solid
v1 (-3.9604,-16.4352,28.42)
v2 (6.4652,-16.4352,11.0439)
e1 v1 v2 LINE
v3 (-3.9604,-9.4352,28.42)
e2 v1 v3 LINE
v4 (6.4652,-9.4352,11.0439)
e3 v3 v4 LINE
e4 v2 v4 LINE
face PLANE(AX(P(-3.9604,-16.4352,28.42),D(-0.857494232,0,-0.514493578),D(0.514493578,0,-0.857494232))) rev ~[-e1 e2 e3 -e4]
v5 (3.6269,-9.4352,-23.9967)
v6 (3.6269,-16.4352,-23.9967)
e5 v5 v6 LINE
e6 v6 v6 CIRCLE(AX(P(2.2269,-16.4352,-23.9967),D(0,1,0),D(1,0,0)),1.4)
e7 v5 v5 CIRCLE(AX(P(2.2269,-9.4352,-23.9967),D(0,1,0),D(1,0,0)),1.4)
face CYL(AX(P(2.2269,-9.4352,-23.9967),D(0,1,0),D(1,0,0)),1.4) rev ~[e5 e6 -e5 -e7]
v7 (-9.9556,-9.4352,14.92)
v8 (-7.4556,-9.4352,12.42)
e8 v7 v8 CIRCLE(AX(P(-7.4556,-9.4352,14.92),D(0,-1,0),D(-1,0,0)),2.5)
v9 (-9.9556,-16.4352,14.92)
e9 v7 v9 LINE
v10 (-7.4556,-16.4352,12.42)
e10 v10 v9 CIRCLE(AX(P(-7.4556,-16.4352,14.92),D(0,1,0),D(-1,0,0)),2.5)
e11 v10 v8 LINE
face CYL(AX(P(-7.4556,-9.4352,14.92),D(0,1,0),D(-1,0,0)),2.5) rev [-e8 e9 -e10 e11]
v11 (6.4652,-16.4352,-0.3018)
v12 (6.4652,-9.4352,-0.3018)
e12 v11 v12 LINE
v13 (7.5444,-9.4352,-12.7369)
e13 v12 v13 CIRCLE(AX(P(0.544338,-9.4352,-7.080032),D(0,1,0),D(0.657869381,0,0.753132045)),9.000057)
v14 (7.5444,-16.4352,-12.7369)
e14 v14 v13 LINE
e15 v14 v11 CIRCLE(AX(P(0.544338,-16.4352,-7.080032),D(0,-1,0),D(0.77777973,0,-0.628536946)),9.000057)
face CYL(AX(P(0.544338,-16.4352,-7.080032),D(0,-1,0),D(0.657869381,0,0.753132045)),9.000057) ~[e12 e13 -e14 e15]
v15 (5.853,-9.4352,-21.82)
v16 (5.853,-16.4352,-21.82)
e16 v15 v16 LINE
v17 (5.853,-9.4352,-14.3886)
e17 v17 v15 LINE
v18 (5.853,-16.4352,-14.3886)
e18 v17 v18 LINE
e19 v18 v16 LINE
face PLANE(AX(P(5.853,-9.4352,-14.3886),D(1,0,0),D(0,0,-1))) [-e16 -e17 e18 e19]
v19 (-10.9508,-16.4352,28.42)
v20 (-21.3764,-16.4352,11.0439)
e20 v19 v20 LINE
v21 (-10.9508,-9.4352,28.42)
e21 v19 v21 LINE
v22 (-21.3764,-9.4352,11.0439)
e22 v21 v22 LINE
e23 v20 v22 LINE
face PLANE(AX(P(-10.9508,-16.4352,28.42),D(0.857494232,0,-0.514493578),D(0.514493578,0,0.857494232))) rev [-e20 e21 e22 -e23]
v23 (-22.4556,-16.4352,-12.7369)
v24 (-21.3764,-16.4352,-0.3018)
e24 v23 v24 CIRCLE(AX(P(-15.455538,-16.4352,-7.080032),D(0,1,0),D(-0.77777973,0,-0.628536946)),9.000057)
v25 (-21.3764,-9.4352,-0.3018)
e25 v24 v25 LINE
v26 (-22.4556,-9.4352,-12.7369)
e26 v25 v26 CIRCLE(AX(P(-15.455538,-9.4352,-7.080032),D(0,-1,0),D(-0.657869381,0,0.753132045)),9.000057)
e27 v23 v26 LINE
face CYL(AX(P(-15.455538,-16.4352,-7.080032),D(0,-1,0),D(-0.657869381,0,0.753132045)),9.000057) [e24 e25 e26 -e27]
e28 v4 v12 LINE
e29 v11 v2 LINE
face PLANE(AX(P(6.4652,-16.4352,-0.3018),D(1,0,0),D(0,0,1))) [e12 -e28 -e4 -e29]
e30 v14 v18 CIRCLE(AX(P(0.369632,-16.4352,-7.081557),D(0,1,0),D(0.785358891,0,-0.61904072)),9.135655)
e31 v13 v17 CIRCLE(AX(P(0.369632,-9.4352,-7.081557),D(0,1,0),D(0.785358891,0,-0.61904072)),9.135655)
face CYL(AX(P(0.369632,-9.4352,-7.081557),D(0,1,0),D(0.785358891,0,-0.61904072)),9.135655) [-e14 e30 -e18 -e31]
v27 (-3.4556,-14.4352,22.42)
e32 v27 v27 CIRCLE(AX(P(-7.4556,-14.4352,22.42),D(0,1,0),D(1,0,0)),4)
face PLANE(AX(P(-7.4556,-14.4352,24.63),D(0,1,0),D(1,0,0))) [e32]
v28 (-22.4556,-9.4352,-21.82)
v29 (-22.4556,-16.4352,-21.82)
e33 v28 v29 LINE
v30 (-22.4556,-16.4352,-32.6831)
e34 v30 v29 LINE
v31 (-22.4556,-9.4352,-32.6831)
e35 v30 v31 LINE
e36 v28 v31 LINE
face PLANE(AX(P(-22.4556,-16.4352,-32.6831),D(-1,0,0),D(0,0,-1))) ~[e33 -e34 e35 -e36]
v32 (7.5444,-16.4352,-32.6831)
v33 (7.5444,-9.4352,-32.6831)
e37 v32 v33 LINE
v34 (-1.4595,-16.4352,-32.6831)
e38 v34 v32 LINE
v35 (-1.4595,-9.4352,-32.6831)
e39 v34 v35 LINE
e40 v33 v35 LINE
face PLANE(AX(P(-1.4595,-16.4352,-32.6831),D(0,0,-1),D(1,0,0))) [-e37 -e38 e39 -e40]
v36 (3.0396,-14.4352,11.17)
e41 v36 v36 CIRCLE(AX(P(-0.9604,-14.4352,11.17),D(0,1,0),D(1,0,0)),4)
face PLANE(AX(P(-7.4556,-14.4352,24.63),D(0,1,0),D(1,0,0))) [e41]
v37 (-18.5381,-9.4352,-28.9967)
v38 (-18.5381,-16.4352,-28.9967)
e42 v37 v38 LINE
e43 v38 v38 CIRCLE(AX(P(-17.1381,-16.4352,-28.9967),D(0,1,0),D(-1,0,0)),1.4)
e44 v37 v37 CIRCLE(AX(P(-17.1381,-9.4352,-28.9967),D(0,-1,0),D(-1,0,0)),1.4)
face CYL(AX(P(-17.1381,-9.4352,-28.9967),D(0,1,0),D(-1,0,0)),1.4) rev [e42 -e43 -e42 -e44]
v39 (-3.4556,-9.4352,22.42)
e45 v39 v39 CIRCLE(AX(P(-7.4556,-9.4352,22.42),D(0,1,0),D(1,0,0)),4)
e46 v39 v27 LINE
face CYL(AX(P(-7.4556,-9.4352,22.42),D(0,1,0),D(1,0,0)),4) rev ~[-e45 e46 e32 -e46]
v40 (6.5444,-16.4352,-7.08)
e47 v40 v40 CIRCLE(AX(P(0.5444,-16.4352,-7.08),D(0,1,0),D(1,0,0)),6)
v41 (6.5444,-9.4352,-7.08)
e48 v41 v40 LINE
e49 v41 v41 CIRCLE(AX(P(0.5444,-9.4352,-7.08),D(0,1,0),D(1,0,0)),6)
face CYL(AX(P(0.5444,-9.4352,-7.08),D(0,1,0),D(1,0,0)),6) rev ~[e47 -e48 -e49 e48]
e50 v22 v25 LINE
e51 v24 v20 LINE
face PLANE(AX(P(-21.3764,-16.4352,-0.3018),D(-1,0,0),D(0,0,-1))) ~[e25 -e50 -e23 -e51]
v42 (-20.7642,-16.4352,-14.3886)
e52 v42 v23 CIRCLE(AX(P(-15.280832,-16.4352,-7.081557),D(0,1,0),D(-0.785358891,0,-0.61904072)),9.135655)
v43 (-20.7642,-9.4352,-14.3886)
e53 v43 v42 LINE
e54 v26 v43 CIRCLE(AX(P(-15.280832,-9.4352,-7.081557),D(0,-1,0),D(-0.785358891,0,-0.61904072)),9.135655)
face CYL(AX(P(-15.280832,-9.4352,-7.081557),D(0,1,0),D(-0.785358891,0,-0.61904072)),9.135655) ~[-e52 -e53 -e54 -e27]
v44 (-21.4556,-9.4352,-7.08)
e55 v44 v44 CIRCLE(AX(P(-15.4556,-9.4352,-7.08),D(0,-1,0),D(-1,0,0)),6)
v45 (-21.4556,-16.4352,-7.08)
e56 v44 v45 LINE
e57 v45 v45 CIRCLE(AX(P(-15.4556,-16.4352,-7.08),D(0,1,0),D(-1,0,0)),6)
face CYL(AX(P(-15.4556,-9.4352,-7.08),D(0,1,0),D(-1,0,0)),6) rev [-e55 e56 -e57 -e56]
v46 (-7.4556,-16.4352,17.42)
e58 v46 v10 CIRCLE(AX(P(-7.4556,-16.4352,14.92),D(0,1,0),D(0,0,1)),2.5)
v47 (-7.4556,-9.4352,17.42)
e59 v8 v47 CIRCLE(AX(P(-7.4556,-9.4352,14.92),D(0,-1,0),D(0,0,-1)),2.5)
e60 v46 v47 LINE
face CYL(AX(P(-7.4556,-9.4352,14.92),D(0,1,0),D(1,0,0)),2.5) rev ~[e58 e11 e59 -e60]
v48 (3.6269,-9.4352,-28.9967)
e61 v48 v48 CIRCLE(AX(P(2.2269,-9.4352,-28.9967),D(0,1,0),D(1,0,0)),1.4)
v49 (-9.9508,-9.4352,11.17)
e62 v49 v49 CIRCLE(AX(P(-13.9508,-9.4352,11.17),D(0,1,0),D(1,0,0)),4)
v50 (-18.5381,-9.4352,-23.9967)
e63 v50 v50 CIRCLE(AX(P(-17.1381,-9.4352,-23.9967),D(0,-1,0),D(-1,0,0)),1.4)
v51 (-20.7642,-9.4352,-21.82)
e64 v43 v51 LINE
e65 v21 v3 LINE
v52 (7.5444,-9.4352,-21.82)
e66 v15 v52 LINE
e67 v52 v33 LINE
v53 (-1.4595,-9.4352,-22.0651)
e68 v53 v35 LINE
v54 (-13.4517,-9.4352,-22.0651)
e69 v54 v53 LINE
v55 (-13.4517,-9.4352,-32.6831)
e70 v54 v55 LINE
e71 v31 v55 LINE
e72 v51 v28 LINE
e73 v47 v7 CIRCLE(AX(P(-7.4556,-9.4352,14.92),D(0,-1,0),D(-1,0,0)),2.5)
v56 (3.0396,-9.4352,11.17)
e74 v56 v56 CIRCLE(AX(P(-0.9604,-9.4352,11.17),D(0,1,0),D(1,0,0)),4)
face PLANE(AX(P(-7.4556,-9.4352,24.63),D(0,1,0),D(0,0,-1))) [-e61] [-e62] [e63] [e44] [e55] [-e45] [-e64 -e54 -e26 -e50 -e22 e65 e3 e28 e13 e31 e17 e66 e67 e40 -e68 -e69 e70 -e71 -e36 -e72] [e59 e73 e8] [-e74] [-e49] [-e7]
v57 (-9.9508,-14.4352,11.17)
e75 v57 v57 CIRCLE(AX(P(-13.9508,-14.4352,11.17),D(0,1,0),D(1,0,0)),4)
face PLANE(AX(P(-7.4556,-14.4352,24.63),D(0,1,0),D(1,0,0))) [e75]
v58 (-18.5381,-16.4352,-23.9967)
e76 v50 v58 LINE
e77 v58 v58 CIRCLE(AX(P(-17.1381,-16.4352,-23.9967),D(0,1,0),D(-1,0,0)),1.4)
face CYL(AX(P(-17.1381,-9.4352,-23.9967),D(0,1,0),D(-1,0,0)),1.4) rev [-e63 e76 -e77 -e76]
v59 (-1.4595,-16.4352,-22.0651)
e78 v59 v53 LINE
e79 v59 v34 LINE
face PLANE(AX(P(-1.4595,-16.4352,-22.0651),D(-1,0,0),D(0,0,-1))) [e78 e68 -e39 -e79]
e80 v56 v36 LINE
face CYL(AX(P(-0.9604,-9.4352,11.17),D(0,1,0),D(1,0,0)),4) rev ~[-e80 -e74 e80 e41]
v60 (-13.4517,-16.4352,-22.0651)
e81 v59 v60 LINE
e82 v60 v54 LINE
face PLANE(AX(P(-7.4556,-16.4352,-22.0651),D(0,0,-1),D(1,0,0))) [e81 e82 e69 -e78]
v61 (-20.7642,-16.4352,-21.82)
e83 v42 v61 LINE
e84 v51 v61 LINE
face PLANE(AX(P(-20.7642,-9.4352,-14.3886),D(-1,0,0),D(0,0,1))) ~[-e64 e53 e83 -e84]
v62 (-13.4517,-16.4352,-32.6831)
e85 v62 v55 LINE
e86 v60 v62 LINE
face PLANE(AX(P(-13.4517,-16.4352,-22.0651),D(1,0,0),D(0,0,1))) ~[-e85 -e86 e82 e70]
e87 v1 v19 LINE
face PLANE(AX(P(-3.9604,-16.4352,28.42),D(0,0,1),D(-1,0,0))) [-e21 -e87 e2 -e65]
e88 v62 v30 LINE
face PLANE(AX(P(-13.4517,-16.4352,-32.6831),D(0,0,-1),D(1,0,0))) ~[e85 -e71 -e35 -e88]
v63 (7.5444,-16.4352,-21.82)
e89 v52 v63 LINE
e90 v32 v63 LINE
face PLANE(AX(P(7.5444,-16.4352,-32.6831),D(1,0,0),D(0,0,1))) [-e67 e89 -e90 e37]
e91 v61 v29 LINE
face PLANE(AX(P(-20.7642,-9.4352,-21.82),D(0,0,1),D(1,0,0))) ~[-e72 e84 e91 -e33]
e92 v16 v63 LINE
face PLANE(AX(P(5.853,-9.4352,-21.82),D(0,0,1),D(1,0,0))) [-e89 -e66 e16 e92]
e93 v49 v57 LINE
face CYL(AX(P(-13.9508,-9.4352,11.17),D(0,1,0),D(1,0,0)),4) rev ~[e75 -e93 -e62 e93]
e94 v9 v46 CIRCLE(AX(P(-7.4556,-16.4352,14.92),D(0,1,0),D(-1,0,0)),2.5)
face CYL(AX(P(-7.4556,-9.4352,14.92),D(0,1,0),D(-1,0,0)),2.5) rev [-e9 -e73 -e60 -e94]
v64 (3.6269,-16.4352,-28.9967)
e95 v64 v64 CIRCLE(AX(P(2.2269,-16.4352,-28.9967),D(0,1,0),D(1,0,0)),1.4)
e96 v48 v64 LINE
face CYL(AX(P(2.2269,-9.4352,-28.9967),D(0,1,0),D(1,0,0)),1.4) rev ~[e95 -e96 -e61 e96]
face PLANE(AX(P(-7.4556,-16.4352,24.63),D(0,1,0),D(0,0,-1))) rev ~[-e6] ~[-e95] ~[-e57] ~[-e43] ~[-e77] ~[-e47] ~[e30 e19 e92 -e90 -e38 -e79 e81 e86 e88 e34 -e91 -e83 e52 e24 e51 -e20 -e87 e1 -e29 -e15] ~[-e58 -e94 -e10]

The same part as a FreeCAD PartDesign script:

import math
import FreeCAD as App
import Part
import Sketcher
from FreeCAD import Vector
Q = App.Units.Quantity

doc = App.newDocument("Part")
body = doc.addObject("PartDesign::Body", "Body")

sketch1 = body.newObject("Sketcher::SketchObject", "Sketch")
sketch1.AttachmentSupport = (doc.getObject("XZ_Plane"), [""])
sketch1.MapMode = "FlatFace"
sketch1.AttachmentOffset = App.Placement(Vector(0, 0, 16.4352), App.Rotation())
sketch1.addGeometry([
    Part.LineSegment(Vector(-1.5, -22.1, 0), Vector(-7.5, -22.1, 0)),
    Part.LineSegment(Vector(-7.5, -22.1, 0), Vector(-7.5, 28.4, 0)),
    Part.LineSegment(Vector(-7.5, 28.4, 0), Vector(-4, 28.4, 0)),
    Part.LineSegment(Vector(-4, 28.4, 0), Vector(6.5, 11, 0)),
    Part.LineSegment(Vector(6.5, 11, 0), Vector(6.5, -0.3, 0)),
    Part.ArcOfCircle(Part.Circle(Vector(0.5, -7.1, 0), Vector(0, 0, 1), 9), math.radians(-39), math.radians(49)),
    Part.LineSegment(Vector(7.5, -12.7, 0), Vector(7.5, -32.7, 0)),
    Part.LineSegment(Vector(7.5, -32.7, 0), Vector(-1.5, -32.7, 0)),
    Part.LineSegment(Vector(-1.5, -32.7, 0), Vector(-1.5, -22.1, 0)),
], False)
sketch1.addConstraint([
    Sketcher.Constraint("Coincident", 0, 2, 1, 1),
    Sketcher.Constraint("Coincident", 1, 2, 2, 1),
    Sketcher.Constraint("Coincident", 2, 2, 3, 1),
    Sketcher.Constraint("Coincident", 3, 2, 4, 1),
    Sketcher.Constraint("Coincident", 4, 2, 5, 2),
    Sketcher.Constraint("Coincident", 5, 1, 6, 1),
    Sketcher.Constraint("Coincident", 6, 2, 7, 1),
    Sketcher.Constraint("Coincident", 7, 2, 8, 1),
    Sketcher.Constraint("Coincident", 8, 2, 0, 1),
    Sketcher.Constraint("Horizontal", 0),
    Sketcher.Constraint("Vertical", 1),
    Sketcher.Constraint("Horizontal", 2),
    Sketcher.Constraint("Vertical", 4),
    Sketcher.Constraint("Vertical", 6),
    Sketcher.Constraint("Horizontal", 7),
    Sketcher.Constraint("Vertical", 8),
    Sketcher.Constraint("Radius", 5, Q("9 mm")),
    Sketcher.Constraint("DistanceX", 0, 2, 5, 3, Q("8 mm")),
    Sketcher.Constraint("DistanceX", 5, 3, 5, 1, Q("7 mm")),
    Sketcher.Constraint("DistanceY", 5, 3, 1, 2, Q("35.5 mm")),
    Sketcher.Constraint("DistanceX", 0, 2, 0, 1, Q("5.996 mm")),
    Sketcher.Constraint("DistanceY", 1, 1, 1, 2, Q("50.485 mm")),
    Sketcher.Constraint("DistanceY", 8, 1, 8, 2, Q("10.618 mm")),
    Sketcher.Constraint("DistanceY", 5, 3, -1, 1, Q("7.08 mm")),
    Sketcher.Constraint("DistanceX", 2, 1, 2, 2, Q("3.4952 mm")),
    Sketcher.Constraint("DistanceY", 4, 2, 4, 1, Q("11.3457 mm")),
    Sketcher.Constraint("DistanceY", -1, 1, 3, 2, Q("11.044 mm")),
    Sketcher.Constraint("DistanceX", -1, 1, 5, 3, Q("0.5444 mm")),
])
pad1 = body.newObject("PartDesign::Pad", "Pad")
pad1.Profile = sketch1
pad1.Length = 7
pad1.Reversed = True

sketch2 = body.newObject("Sketcher::SketchObject", "Sketch001")
sketch2.AttachmentSupport = (doc.getObject("XZ_Plane"), [""])
sketch2.MapMode = "FlatFace"
sketch2.AttachmentOffset = App.Placement(Vector(0, 0, 9.4352), App.Rotation())
sketch2.addGeometry([
    Part.Circle(Vector(0.5, -7.1, 0), Vector(0, 0, 1), 6),
    Part.Circle(Vector(2.2, -29, 0), Vector(0, 0, 1), 1.4),
    Part.Circle(Vector(2.2, -24, 0), Vector(0, 0, 1), 1.4),
    Part.Circle(Vector(-7.5, 14.9, 0), Vector(0, 0, 1), 2.5),
], False)
sketch2.addConstraint([
    Sketcher.Constraint("Equal", 1, 2),
    Sketcher.Constraint("Vertical", 1, 3, 2, 3),
    Sketcher.Constraint("Diameter", 0, Q("12 mm")),
    Sketcher.Constraint("Diameter", 3, Q("5 mm")),
    Sketcher.Constraint("Diameter", 1, Q("2.8 mm")),
    Sketcher.Constraint("DistanceY", 1, 3, 2, 3, Q("5 mm")),
    Sketcher.Constraint("DistanceX", 3, 3, 0, 3, Q("8 mm")),
    Sketcher.Constraint("DistanceY", 0, 3, 3, 3, Q("22 mm")),
    Sketcher.Constraint("DistanceY", 0, 3, -1, 1, Q("7.08 mm")),
    Sketcher.Constraint("DistanceX", -1, 1, 1, 3, Q("2.227 mm")),
    Sketcher.Constraint("DistanceX", -1, 1, 0, 3, Q("0.5444 mm")),
    Sketcher.Constraint("DistanceY", 1, 3, -1, 1, Q("28.9967 mm")),
])
pocket1 = body.newObject("PartDesign::Pocket", "Pocket")
pocket1.Profile = sketch2
pocket1.Type = "ThroughAll"
pocket1.Reversed = True

sketch3 = body.newObject("Sketcher::SketchObject", "Sketch002")
sketch3.AttachmentSupport = (doc.getObject("XZ_Plane"), [""])
sketch3.MapMode = "FlatFace"
sketch3.AttachmentOffset = App.Placement(Vector(0, 0, 9.4352), App.Rotation())
sketch3.addGeometry([
    Part.ArcOfCircle(Part.Circle(Vector(0.4, -7.1, 0), Vector(0, 0, 1), 9.1), math.radians(-53.11), math.radians(-38.25)),
    Part.LineSegment(Vector(7.5, -12.7, 0), Vector(7.5, -21.8, 0)),
    Part.LineSegment(Vector(7.5, -21.8, 0), Vector(5.9, -21.8, 0)),
    Part.LineSegment(Vector(5.9, -21.8, 0), Vector(5.9, -14.4, 0)),
], False)
sketch3.addConstraint([
    Sketcher.Constraint("Coincident", 0, 2, 1, 1),
    Sketcher.Constraint("Coincident", 1, 2, 2, 1),
    Sketcher.Constraint("Coincident", 2, 2, 3, 1),
    Sketcher.Constraint("Coincident", 3, 2, 0, 1),
    Sketcher.Constraint("Vertical", 1),
    Sketcher.Constraint("Horizontal", 2),
    Sketcher.Constraint("Vertical", 3),
    Sketcher.Constraint("Radius", 0, Q("9.1357 mm")),
    Sketcher.Constraint("DistanceY", 1, 2, 1, 1, Q("9.083 mm")),
    Sketcher.Constraint("DistanceY", 1, 2, -1, 1, Q("21.82 mm")),
    Sketcher.Constraint("DistanceX", 2, 2, 2, 1, Q("1.6914 mm")),
    Sketcher.Constraint("DistanceY", 3, 1, 3, 2, Q("7.4314 mm")),
    Sketcher.Constraint("DistanceX", -1, 1, 2, 2, Q("5.853 mm")),
])
pocket2 = body.newObject("PartDesign::Pocket", "Pocket001")
pocket2.Profile = sketch3
pocket2.Type = "ThroughAll"
pocket2.Reversed = True
doc.recompute()

datumplane = body.newObject("PartDesign::Plane", "DatumPlane")
datumplane.AttachmentSupport = (doc.getObject("YZ_Plane"), [""])
datumplane.MapMode = "FlatFace"
datumplane.AttachmentOffset = App.Placement(Vector(0, 0, -7.4556), App.Rotation())
mirrored = body.newObject("PartDesign::Mirrored", "Mirrored")
mirrored.Originals = [pad1, pocket1, pocket2]
mirrored.MirrorPlane = (datumplane, [""])
body.Tip = mirrored

sketch4 = body.newObject("Sketcher::SketchObject", "Sketch003")
sketch4.AttachmentSupport = (doc.getObject("XZ_Plane"), [""])
sketch4.MapMode = "FlatFace"
sketch4.AttachmentOffset = App.Placement(Vector(0, 0, 9.4352), App.Rotation())
sketch4.addGeometry([
    Part.Circle(Vector(-1, 11.2, 0), Vector(0, 0, 1), 4),
    Part.Circle(Vector(-7.5, 22.4, 0), Vector(0, 0, 1), 4),
    Part.Circle(Vector(-14, 11.2, 0), Vector(0, 0, 1), 4),
], False)
sketch4.addConstraint([
    Sketcher.Constraint("Equal", 0, 1),
    Sketcher.Constraint("Equal", 1, 2),
    Sketcher.Constraint("Horizontal", 0, 3, 2, 3),
    Sketcher.Constraint("Diameter", 0, Q("8 mm")),
    Sketcher.Constraint("DistanceY", -1, 1, 0, 3, Q("11.17 mm")),
    Sketcher.Constraint("DistanceY", -1, 1, 1, 3, Q("22.42 mm")),
    Sketcher.Constraint("DistanceX", 0, 3, -1, 1, Q("0.9604 mm")),
    Sketcher.Constraint("DistanceX", 1, 3, -1, 1, Q("7.4556 mm")),
    Sketcher.Constraint("DistanceX", 2, 3, -1, 1, Q("13.9508 mm")),
])
pocket3 = body.newObject("PartDesign::Pocket", "Pocket002")
pocket3.Profile = sketch4
pocket3.Length = 5
pocket3.Reversed = True

doc.recompute()
